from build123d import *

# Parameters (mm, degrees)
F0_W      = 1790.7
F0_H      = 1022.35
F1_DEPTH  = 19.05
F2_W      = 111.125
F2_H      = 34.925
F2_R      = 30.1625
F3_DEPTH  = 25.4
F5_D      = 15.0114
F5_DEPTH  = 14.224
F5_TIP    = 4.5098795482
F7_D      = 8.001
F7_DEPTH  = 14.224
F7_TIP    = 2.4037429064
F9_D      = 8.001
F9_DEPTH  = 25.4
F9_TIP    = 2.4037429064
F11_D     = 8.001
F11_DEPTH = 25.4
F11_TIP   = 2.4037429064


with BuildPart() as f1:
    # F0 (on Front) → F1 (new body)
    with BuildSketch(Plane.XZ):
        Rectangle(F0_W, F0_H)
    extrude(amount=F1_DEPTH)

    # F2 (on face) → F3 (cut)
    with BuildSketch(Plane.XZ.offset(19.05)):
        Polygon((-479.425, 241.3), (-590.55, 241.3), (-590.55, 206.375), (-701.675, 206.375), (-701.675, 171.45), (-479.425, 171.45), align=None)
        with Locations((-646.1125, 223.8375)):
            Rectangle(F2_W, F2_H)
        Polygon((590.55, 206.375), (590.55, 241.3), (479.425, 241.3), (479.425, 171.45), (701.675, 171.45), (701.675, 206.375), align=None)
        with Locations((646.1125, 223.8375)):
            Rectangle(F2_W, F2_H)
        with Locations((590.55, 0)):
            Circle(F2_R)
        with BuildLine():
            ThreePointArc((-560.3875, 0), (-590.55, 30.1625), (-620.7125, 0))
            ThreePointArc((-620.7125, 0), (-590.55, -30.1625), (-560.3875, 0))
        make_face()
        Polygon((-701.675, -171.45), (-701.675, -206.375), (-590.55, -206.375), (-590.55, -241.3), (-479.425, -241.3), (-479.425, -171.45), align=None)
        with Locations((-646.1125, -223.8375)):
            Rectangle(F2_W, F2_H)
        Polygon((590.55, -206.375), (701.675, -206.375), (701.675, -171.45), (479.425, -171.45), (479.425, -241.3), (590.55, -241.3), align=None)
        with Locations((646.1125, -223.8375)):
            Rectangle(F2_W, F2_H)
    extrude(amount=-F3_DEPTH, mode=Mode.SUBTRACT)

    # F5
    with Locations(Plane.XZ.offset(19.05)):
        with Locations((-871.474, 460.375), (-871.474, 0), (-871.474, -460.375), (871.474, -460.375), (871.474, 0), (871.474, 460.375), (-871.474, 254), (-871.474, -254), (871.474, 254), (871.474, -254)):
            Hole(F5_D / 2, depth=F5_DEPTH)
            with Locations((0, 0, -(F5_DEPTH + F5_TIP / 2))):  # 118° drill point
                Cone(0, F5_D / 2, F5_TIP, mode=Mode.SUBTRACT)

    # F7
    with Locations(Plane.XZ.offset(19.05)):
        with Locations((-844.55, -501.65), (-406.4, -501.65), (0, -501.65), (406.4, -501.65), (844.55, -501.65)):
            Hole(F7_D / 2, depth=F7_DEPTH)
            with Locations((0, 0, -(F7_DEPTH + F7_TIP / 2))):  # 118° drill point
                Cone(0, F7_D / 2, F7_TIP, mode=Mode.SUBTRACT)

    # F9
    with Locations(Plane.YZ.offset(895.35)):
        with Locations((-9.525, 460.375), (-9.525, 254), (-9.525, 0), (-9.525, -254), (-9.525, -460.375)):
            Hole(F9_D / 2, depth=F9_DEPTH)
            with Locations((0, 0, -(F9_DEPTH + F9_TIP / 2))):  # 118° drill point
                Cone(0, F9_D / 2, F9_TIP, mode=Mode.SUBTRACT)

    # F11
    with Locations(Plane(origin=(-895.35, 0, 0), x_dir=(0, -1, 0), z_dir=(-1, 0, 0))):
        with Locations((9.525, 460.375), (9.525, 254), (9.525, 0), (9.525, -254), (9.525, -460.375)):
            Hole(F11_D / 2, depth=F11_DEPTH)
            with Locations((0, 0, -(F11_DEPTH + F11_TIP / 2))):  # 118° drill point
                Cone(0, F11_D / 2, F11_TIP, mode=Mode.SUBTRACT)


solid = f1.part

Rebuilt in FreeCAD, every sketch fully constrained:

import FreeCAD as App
import Part
import Sketcher
from FreeCAD import Vector
Q = App.Units.Quantity


def add_polygon(sketch, points):
    """Adds a closed chain of lines whose ends are joined by coincident constraints."""
    first, n = sketch.GeometryCount, len(points)
    for a, b in zip(points, points[1:] + points[:1]):
        sketch.addGeometry(Part.LineSegment(App.Vector(*a, 0), App.Vector(*b, 0)), False)
    for i in range(n):
        sketch.addConstraint(Sketcher.Constraint("Coincident", first + i, 2, first + (i + 1) % n, 1))

doc = App.newDocument("Part")
body = doc.addObject("PartDesign::Body", "Body")

# Sketch on XZ plane
sketch1 = body.newObject("Sketcher::SketchObject", "Sketch")
sketch1.AttachmentSupport = (doc.getObject("XZ_Plane"), [""])
sketch1.MapMode = "FlatFace"
add_polygon(sketch1, [(-895.35, 511.175), (-895.35, -511.175), (895.35, -511.175), (895.35, 511.175)])  # lines 0-3
sketch1.addConstraint(Sketcher.Constraint("Vertical", 0))
sketch1.addConstraint(Sketcher.Constraint("Horizontal", 1))
sketch1.addConstraint(Sketcher.Constraint("Vertical", 2))
sketch1.addConstraint(Sketcher.Constraint("Horizontal", 3))
sketch1.addConstraint(Sketcher.Constraint("Symmetric", 0, 2, 2, 2, -1, 1))
sketch1.addConstraint(Sketcher.Constraint("DistanceX", 1, 1, 1, 2, Q("70.5 in")))
sketch1.addConstraint(Sketcher.Constraint("DistanceY", 0, 2, 0, 1, Q("40.25 in")))
pad1 = body.newObject("PartDesign::Pad", "Pad")
pad1.Profile = sketch1
pad1.Length = Q("0.75 in")

# Sketch on XZ plane
sketch2 = body.newObject("Sketcher::SketchObject", "Sketch001")
sketch2.AttachmentSupport = (doc.getObject("XZ_Plane"), [""])
sketch2.MapMode = "FlatFace"
sketch2.AttachmentOffset = App.Placement(Vector(0, 0, 0.75 * 25.4), App.Rotation())
add_polygon(sketch2, [(-479.425, 241.3), (-701.675, 241.3), (-701.675, 171.45), (-479.425, 171.45)])  # lines 0-3
add_polygon(sketch2, [(479.425, 241.3), (479.425, 171.45), (701.675, 171.45), (701.675, 241.3)])  # lines 4-7
sketch2.addGeometry(Part.Circle(Vector(590.55, 0, 0), Vector(0, 0, 1), 30.1625), False)  # 8
sketch2.addGeometry(Part.Circle(Vector(-590.55, 0, 0), Vector(0, 0, 1), 30.1625), False)  # 9
add_polygon(sketch2, [(-701.675, -171.45), (-701.675, -241.3), (-479.425, -241.3), (-479.425, -171.45)])  # lines 10-13
add_polygon(sketch2, [(701.675, -171.45), (479.425, -171.45), (479.425, -241.3), (701.675, -241.3)])  # lines 14-17
sketch2.addConstraint(Sketcher.Constraint("Horizontal", 0))
sketch2.addConstraint(Sketcher.Constraint("Vertical", 1))
sketch2.addConstraint(Sketcher.Constraint("Horizontal", 2))
sketch2.addConstraint(Sketcher.Constraint("Vertical", 3))
sketch2.addConstraint(Sketcher.Constraint("Vertical", 4))
sketch2.addConstraint(Sketcher.Constraint("Horizontal", 5))
sketch2.addConstraint(Sketcher.Constraint("Vertical", 6))
sketch2.addConstraint(Sketcher.Constraint("Horizontal", 7))
sketch2.addConstraint(Sketcher.Constraint("Vertical", 10))
sketch2.addConstraint(Sketcher.Constraint("Horizontal", 11))
sketch2.addConstraint(Sketcher.Constraint("Vertical", 12))
sketch2.addConstraint(Sketcher.Constraint("Horizontal", 13))
sketch2.addConstraint(Sketcher.Constraint("Horizontal", 14))
sketch2.addConstraint(Sketcher.Constraint("Vertical", 15))
sketch2.addConstraint(Sketcher.Constraint("Horizontal", 16))
sketch2.addConstraint(Sketcher.Constraint("Vertical", 17))
sketch2.addConstraint(Sketcher.Constraint("Equal", 8, 9))
sketch2.addConstraint(Sketcher.Constraint("Symmetric", 8, 3, 9, 3, -1, 1))
sketch2.addConstraint(Sketcher.Constraint("Symmetric", 6, 2, 10, 2, -1, 1))
sketch2.addConstraint(Sketcher.Constraint("Symmetric", 4, 2, 12, 2, -1, 1))
sketch2.addConstraint(Sketcher.Constraint("Symmetric", 2, 2, 14, 2, -1, 1))
sketch2.addConstraint(Sketcher.Constraint("Symmetric", 0, 2, 16, 2, -1, 1))
sketch2.addConstraint(Sketcher.Constraint("Symmetric", 2, 2, 4, 2, -2))
sketch2.addConstraint(Sketcher.Constraint("Symmetric", 0, 2, 6, 2, -2))
sketch2.addConstraint(Sketcher.Constraint("PointOnObject", 8, 3, -1))
sketch2.addConstraint(Sketcher.Constraint("Diameter", 8, Q("2.375 in")))
sketch2.addConstraint(Sketcher.Constraint("DistanceY", 10, 2, 0, 2, Q("19 in")))
sketch2.addConstraint(Sketcher.Constraint("DistanceX", 0, 2, 0, 1, Q("8.75 in")))
sketch2.addConstraint(Sketcher.Constraint("DistanceY", 1, 2, 1, 1, Q("2.75 in")))
sketch2.addConstraint(Sketcher.Constraint("DistanceX", 9, 3, 8, 3, Q("46.5 in")))
sketch2.addConstraint(Sketcher.Constraint("DistanceX", 1, 2, 4, 2, Q("46.5 in")))
pocket1 = body.newObject("PartDesign::Pocket", "Pocket")
pocket1.Profile = sketch2
pocket1.Length = Q("1 in")

# Sketch on XZ plane
sketch3 = body.newObject("Sketcher::SketchObject", "Sketch002")
sketch3.AttachmentSupport = (doc.getObject("XZ_Plane"), [""])
sketch3.MapMode = "FlatFace"
sketch3.AttachmentOffset = App.Placement(Vector(0, 0, 0.75 * 25.4), App.Rotation())
sketch3.addGeometry(Part.Circle(Vector(-871.474, 460.375, 0), Vector(0, 0, 1), 7.5057), False)
sketch3.addGeometry(Part.Circle(Vector(-871.474, 0, 0), Vector(0, 0, 1), 7.5057), False)
sketch3.addGeometry(Part.Circle(Vector(-871.474, -460.375, 0), Vector(0, 0, 1), 7.5057), False)
sketch3.addGeometry(Part.Circle(Vector(871.474, -460.375, 0), Vector(0, 0, 1), 7.5057), False)
sketch3.addGeometry(Part.Circle(Vector(871.474, 0, 0), Vector(0, 0, 1), 7.5057), False)
sketch3.addGeometry(Part.Circle(Vector(871.474, 460.375, 0), Vector(0, 0, 1), 7.5057), False)
sketch3.addGeometry(Part.Circle(Vector(-871.474, 254, 0), Vector(0, 0, 1), 7.5057), False)
sketch3.addGeometry(Part.Circle(Vector(-871.474, -254, 0), Vector(0, 0, 1), 7.5057), False)
sketch3.addGeometry(Part.Circle(Vector(871.474, 254, 0), Vector(0, 0, 1), 7.5057), False)
sketch3.addGeometry(Part.Circle(Vector(871.474, -254, 0), Vector(0, 0, 1), 7.5057), False)
sketch3.addConstraint(Sketcher.Constraint("Equal", 0, 1))
sketch3.addConstraint(Sketcher.Constraint("Equal", 1, 2))
sketch3.addConstraint(Sketcher.Constraint("Equal", 2, 3))
sketch3.addConstraint(Sketcher.Constraint("Equal", 3, 4))
sketch3.addConstraint(Sketcher.Constraint("Equal", 4, 5))
sketch3.addConstraint(Sketcher.Constraint("Equal", 5, 6))
sketch3.addConstraint(Sketcher.Constraint("Equal", 6, 7))
sketch3.addConstraint(Sketcher.Constraint("Equal", 7, 8))
sketch3.addConstraint(Sketcher.Constraint("Equal", 8, 9))
sketch3.addConstraint(Sketcher.Constraint("Symmetric", 0, 3, 3, 3, -1, 1))
sketch3.addConstraint(Sketcher.Constraint("Symmetric", 1, 3, 4, 3, -1, 1))
sketch3.addConstraint(Sketcher.Constraint("Symmetric", 2, 3, 5, 3, -1, 1))
sketch3.addConstraint(Sketcher.Constraint("Symmetric", 7, 3, 8, 3, -1, 1))
sketch3.addConstraint(Sketcher.Constraint("Symmetric", 6, 3, 9, 3, -1, 1))
sketch3.addConstraint(Sketcher.Constraint("Symmetric", 2, 3, 3, 3, -2))
sketch3.addConstraint(Sketcher.Constraint("Symmetric", 6, 3, 8, 3, -2))
sketch3.addConstraint(Sketcher.Constraint("PointOnObject", 1, 3, -1))
sketch3.addConstraint(Sketcher.Constraint("Vertical", 0, 3, 1, 3))
sketch3.addConstraint(Sketcher.Constraint("Vertical", 2, 3, 6, 3))
sketch3.addConstraint(Sketcher.Constraint("Diameter", 0, Q("0.591 in")))
sketch3.addConstraint(Sketcher.Constraint("DistanceY", -1, 1, 6, 3, Q("10 in")))
sketch3.addConstraint(Sketcher.Constraint("DistanceX", 0, 3, -1, 1, Q("34.31 in")))
sketch3.addConstraint(Sketcher.Constraint("DistanceY", 2, 3, 0, 3, Q("36.25 in")))
doc.recompute()
hole = body.newObject("PartDesign::Hole", "Hole")
hole.Profile = sketch3
hole.ThreadType = "None"
hole.Diameter = Q("0.591 in")
hole.DepthType = "Dimension"
hole.Depth = Q("0.56 in")
hole.DrillPoint = "Angled"
hole.DrillPointAngle = 118

# Sketch on XZ plane
sketch4 = body.newObject("Sketcher::SketchObject", "Sketch003")
sketch4.AttachmentSupport = (doc.getObject("XZ_Plane"), [""])
sketch4.MapMode = "FlatFace"
sketch4.AttachmentOffset = App.Placement(Vector(0, 0, 0.75 * 25.4), App.Rotation())
sketch4.addGeometry(Part.Circle(Vector(-844.55, -501.65, 0), Vector(0, 0, 1), 4.0005), False)
sketch4.addGeometry(Part.Circle(Vector(-406.4, -501.65, 0), Vector(0, 0, 1), 4.0005), False)
sketch4.addGeometry(Part.Circle(Vector(0, -501.65, 0), Vector(0, 0, 1), 4.0005), False)
sketch4.addGeometry(Part.Circle(Vector(406.4, -501.65, 0), Vector(0, 0, 1), 4.0005), False)
sketch4.addGeometry(Part.Circle(Vector(844.55, -501.65, 0), Vector(0, 0, 1), 4.0005), False)
sketch4.addConstraint(Sketcher.Constraint("Equal", 0, 1))
sketch4.addConstraint(Sketcher.Constraint("Equal", 1, 2))
sketch4.addConstraint(Sketcher.Constraint("Equal", 2, 3))
sketch4.addConstraint(Sketcher.Constraint("Equal", 3, 4))
sketch4.addConstraint(Sketcher.Constraint("Symmetric", 1, 3, 3, 3, -2))
sketch4.addConstraint(Sketcher.Constraint("Symmetric", 0, 3, 4, 3, -2))
sketch4.addConstraint(Sketcher.Constraint("PointOnObject", 2, 3, -2))
sketch4.addConstraint(Sketcher.Constraint("Horizontal", 0, 3, 1, 3))
sketch4.addConstraint(Sketcher.Constraint("Horizontal", 1, 3, 2, 3))
sketch4.addConstraint(Sketcher.Constraint("Diameter", 0, Q("0.315 in")))
sketch4.addConstraint(Sketcher.Constraint("DistanceX", 1, 3, -1, 1, Q("16 in")))
sketch4.addConstraint(Sketcher.Constraint("DistanceX", 0, 3, 4, 3, Q("66.5 in")))
sketch4.addConstraint(Sketcher.Constraint("DistanceY", 0, 3, -1, 1, Q("19.75 in")))
doc.recompute()
hole2 = body.newObject("PartDesign::Hole", "Hole001")
hole2.Profile = sketch4
hole2.ThreadType = "None"
hole2.Diameter = Q("0.315 in")
hole2.DepthType = "Dimension"
hole2.Depth = Q("0.56 in")
hole2.DrillPoint = "Angled"
hole2.DrillPointAngle = 118

# Sketch on YZ plane
sketch5 = body.newObject("Sketcher::SketchObject", "Sketch004")
sketch5.AttachmentSupport = (doc.getObject("YZ_Plane"), [""])
sketch5.MapMode = "FlatFace"
sketch5.AttachmentOffset = App.Placement(Vector(0, 0, 35.25 * 25.4), App.Rotation())
sketch5.addGeometry(Part.Circle(Vector(-9.525, 460.375, 0), Vector(0, 0, 1), 4.0005), False)
sketch5.addGeometry(Part.Circle(Vector(-9.525, 254, 0), Vector(0, 0, 1), 4.0005), False)
sketch5.addGeometry(Part.Circle(Vector(-9.525, 0, 0), Vector(0, 0, 1), 4.0005), False)
sketch5.addGeometry(Part.Circle(Vector(-9.525, -254, 0), Vector(0, 0, 1), 4.0005), False)
sketch5.addGeometry(Part.Circle(Vector(-9.525, -460.375, 0), Vector(0, 0, 1), 4.0005), False)
sketch5.addConstraint(Sketcher.Constraint("Equal", 0, 1))
sketch5.addConstraint(Sketcher.Constraint("Equal", 1, 2))
sketch5.addConstraint(Sketcher.Constraint("Equal", 2, 3))
sketch5.addConstraint(Sketcher.Constraint("Equal", 3, 4))
sketch5.addConstraint(Sketcher.Constraint("Symmetric", 1, 3, 3, 3, -1))
sketch5.addConstraint(Sketcher.Constraint("Symmetric", 0, 3, 4, 3, -1))
sketch5.addConstraint(Sketcher.Constraint("PointOnObject", 2, 3, -1))
sketch5.addConstraint(Sketcher.Constraint("Vertical", 0, 3, 1, 3))
sketch5.addConstraint(Sketcher.Constraint("Vertical", 1, 3, 2, 3))
sketch5.addConstraint(Sketcher.Constraint("Diameter", 0, Q("0.315 in")))
sketch5.addConstraint(Sketcher.Constraint("DistanceY", -1, 1, 1, 3, Q("10 in")))
sketch5.addConstraint(Sketcher.Constraint("DistanceY", 4, 3, 0, 3, Q("36.25 in")))
sketch5.addConstraint(Sketcher.Constraint("DistanceX", 0, 3, -1, 1, Q("0.375 in")))
doc.recompute()
hole3 = body.newObject("PartDesign::Hole", "Hole002")
hole3.Profile = sketch5
hole3.ThreadType = "None"
hole3.Diameter = Q("0.315 in")
hole3.DepthType = "Dimension"
hole3.Depth = Q("1 in")
hole3.DrillPoint = "Angled"
hole3.DrillPointAngle = 118

# Sketch on YZ plane
sketch6 = body.newObject("Sketcher::SketchObject", "Sketch005")
sketch6.AttachmentSupport = (doc.getObject("YZ_Plane"), [""])
sketch6.MapMode = "FlatFace"
sketch6.AttachmentOffset = App.Placement(Vector(0, 0, -35.25 * 25.4), App.Rotation())
sketch6.addGeometry(Part.Circle(Vector(-9.525, 460.375, 0), Vector(0, 0, 1), 4.0005), False)
sketch6.addGeometry(Part.Circle(Vector(-9.525, 254, 0), Vector(0, 0, 1), 4.0005), False)
sketch6.addGeometry(Part.Circle(Vector(-9.525, 0, 0), Vector(0, 0, 1), 4.0005), False)
sketch6.addGeometry(Part.Circle(Vector(-9.525, -254, 0), Vector(0, 0, 1), 4.0005), False)
sketch6.addGeometry(Part.Circle(Vector(-9.525, -460.375, 0), Vector(0, 0, 1), 4.0005), False)
sketch6.addConstraint(Sketcher.Constraint("Equal", 0, 1))
sketch6.addConstraint(Sketcher.Constraint("Equal", 1, 2))
sketch6.addConstraint(Sketcher.Constraint("Equal", 2, 3))
sketch6.addConstraint(Sketcher.Constraint("Equal", 3, 4))
sketch6.addConstraint(Sketcher.Constraint("Symmetric", 1, 3, 3, 3, -1))
sketch6.addConstraint(Sketcher.Constraint("Symmetric", 0, 3, 4, 3, -1))
sketch6.addConstraint(Sketcher.Constraint("PointOnObject", 2, 3, -1))
sketch6.addConstraint(Sketcher.Constraint("Vertical", 0, 3, 1, 3))
sketch6.addConstraint(Sketcher.Constraint("Vertical", 1, 3, 2, 3))
sketch6.addConstraint(Sketcher.Constraint("Diameter", 0, Q("0.315 in")))
sketch6.addConstraint(Sketcher.Constraint("DistanceY", -1, 1, 1, 3, Q("10 in")))
sketch6.addConstraint(Sketcher.Constraint("DistanceY", 4, 3, 0, 3, Q("36.25 in")))
sketch6.addConstraint(Sketcher.Constraint("DistanceX", 0, 3, -1, 1, Q("0.375 in")))
doc.recompute()
hole4 = body.newObject("PartDesign::Hole", "Hole003")
hole4.Profile = sketch6
hole4.ThreadType = "None"
hole4.Diameter = Q("0.315 in")
hole4.DepthType = "Dimension"
hole4.Depth = Q("1 in")
hole4.DrillPoint = "Angled"
hole4.DrillPointAngle = 118
hole4.Reversed = True

doc.recompute()
